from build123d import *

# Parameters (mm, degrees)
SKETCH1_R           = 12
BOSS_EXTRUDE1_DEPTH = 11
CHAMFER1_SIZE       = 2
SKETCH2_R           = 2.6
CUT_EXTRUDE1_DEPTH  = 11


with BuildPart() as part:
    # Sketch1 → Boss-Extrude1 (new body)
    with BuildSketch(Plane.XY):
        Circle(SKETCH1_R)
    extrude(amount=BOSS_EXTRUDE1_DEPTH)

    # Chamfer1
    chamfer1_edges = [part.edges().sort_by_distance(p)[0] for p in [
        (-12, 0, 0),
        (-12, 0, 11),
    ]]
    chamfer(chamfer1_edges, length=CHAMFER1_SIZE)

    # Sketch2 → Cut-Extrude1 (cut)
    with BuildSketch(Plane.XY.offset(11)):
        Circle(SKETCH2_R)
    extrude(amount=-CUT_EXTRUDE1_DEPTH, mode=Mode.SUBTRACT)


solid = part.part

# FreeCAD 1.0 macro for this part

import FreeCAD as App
import Part
import Sketcher

V = App.Vector
Q = App.Units.Quantity


def edges_at(feature, points):
    """Names of the edges that pass closest to the given points."""
    edges = feature.Shape.Edges
    near = lambda p: min(range(len(edges)), key=lambda i: edges[i].distToShape(Part.Vertex(*p))[0])
    return sorted({f"Edge{near(p) + 1}" for p in points})

doc = App.newDocument("Part")
body = doc.addObject("PartDesign::Body", "Body")

sketch1 = body.newObject("Sketcher::SketchObject", "Sketch")
sketch1.AttachmentSupport = (doc.getObject("XY_Plane"), [""])
sketch1.MapMode = "FlatFace"
sketch1.addGeometry(Part.Circle(V(0, 0, 0), V(0, 0, 1), 12), False)
sketch1.addConstraint(Sketcher.Constraint("Coincident", 0, 3, -1, 1))
sketch1.addConstraint(Sketcher.Constraint("Diameter", 0, Q("24 mm")))
pad1 = body.newObject("PartDesign::Pad", "Pad")
pad1.Profile = sketch1
pad1.Length = 11
doc.recompute()

chamfer = body.newObject("PartDesign::Chamfer", "Chamfer")
chamfer.Base = (pad1, edges_at(pad1, [(-12, 0, 0), (-12, 0, 11)]))
chamfer.Size = 2

sketch2 = body.newObject("Sketcher::SketchObject", "Sketch001")
sketch2.AttachmentSupport = (doc.getObject("XY_Plane"), [""])
sketch2.MapMode = "FlatFace"
sketch2.AttachmentOffset = App.Placement(V(0, 0, 11), App.Rotation())
sketch2.addGeometry(Part.Circle(V(0, 0, 0), V(0, 0, 1), 2.6), False)
sketch2.addConstraint(Sketcher.Constraint("Coincident", 0, 3, -1, 1))
sketch2.addConstraint(Sketcher.Constraint("Diameter", 0, Q("5.2 mm")))
pocket1 = body.newObject("PartDesign::Pocket", "Pocket")
pocket1.Profile = sketch2
pocket1.Length = 11

doc.recompute()
